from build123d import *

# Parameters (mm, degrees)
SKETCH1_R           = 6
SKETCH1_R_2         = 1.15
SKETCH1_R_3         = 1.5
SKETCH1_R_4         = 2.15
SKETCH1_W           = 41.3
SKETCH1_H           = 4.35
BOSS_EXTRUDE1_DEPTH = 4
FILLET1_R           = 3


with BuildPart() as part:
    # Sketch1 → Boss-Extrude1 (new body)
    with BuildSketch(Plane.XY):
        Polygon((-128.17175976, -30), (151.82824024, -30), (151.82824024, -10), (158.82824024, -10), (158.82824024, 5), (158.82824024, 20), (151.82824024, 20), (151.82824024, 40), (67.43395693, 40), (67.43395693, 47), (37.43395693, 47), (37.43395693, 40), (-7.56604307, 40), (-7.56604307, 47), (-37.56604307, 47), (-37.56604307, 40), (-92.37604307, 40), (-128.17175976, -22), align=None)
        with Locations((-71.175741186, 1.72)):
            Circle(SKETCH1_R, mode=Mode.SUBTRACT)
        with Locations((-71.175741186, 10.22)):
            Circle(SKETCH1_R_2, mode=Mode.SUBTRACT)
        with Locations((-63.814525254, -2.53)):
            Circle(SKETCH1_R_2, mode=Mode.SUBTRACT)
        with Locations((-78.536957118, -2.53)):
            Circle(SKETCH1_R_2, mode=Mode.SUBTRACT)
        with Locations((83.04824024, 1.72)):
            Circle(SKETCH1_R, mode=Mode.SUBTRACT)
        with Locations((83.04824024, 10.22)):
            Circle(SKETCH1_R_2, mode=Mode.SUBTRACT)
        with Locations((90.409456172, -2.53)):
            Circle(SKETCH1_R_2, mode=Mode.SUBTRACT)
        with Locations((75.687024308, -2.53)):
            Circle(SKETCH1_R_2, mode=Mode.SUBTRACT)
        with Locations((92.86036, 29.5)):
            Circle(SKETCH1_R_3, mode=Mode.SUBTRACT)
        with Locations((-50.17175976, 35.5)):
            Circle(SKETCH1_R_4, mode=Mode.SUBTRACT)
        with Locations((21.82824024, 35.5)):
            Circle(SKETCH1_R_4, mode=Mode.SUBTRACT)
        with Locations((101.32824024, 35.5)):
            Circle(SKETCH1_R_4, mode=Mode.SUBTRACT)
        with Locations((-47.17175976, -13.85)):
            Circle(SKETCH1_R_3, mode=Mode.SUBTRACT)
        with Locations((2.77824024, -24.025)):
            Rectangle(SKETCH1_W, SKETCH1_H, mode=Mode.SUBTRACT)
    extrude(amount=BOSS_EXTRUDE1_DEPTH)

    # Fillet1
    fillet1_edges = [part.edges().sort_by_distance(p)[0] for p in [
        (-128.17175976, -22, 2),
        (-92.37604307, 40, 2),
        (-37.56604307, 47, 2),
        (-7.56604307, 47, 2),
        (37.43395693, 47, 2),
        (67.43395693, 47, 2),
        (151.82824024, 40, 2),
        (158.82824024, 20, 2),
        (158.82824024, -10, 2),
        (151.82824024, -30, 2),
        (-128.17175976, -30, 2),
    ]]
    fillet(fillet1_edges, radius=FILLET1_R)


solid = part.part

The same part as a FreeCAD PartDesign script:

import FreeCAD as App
import Part
import Sketcher
Q = App.Units.Quantity


def edges_at(feature, points):
    """Names of the edges that pass closest to the given points."""
    edges = feature.Shape.Edges
    near = lambda p: min(range(len(edges)), key=lambda i: edges[i].distToShape(Part.Vertex(*p))[0])
    return sorted({f"Edge{near(p) + 1}" for p in points})


def add_polygon(sketch, points):
    """Adds a closed chain of lines whose ends are joined by coincident constraints."""
    first, n = sketch.GeometryCount, len(points)
    for a, b in zip(points, points[1:] + points[:1]):
        sketch.addGeometry(Part.LineSegment(App.Vector(*a, 0), App.Vector(*b, 0)), False)
    for i in range(n):
        sketch.addConstraint(Sketcher.Constraint("Coincident", first + i, 2, first + (i + 1) % n, 1))

doc = App.newDocument("Part")
body = doc.addObject("PartDesign::Body", "Body")

# Sketch on XY plane
sketch1 = body.newObject("Sketcher::SketchObject", "Sketch")
sketch1.AttachmentSupport = (doc.getObject("XY_Plane"), [""])
sketch1.MapMode = "FlatFace"
add_polygon(sketch1, [(-128.2, -30), (151.8, -30), (151.8, -10), (158.8, -10), (158.8, 20), (151.8, 20), (151.8, 40), (67.4, 40), (67.4, 47), (37.4, 47), (37.4, 40), (-7.6, 40), (-7.6, 47), (-37.6, 47), (-37.6, 40), (-92.4, 40), (-128.2, -22)])  # lines 0-16
sketch1.addGeometry(Part.Circle(App.Vector(-47.2, -13.8, 0), App.Vector(0, 0, 1), 1.5), False)  # 17
add_polygon(sketch1, [(23.4, -26.2), (-17.9, -26.2), (-17.9, -21.9), (23.4, -21.9)])  # lines 18-21
sketch1.addGeometry(Part.Circle(App.Vector(-78.5, -2.5, 0), App.Vector(0, 0, 1), 1.1), False)  # 22
sketch1.addGeometry(Part.Circle(App.Vector(-63.8, -2.5, 0), App.Vector(0, 0, 1), 1.1), False)  # 23
sketch1.addGeometry(Part.Circle(App.Vector(-71.2, 1.7, 0), App.Vector(0, 0, 1), 6), False)  # 24
sketch1.addGeometry(Part.Circle(App.Vector(75.7, -2.5, 0), App.Vector(0, 0, 1), 1.1), False)  # 25
sketch1.addGeometry(Part.Circle(App.Vector(90.4, -2.5, 0), App.Vector(0, 0, 1), 1.1), False)  # 26
sketch1.addGeometry(Part.Circle(App.Vector(83, 1.7, 0), App.Vector(0, 0, 1), 6), False)  # 27
sketch1.addGeometry(Part.Circle(App.Vector(-71.2, 10.2, 0), App.Vector(0, 0, 1), 1.1), False)  # 28
sketch1.addGeometry(Part.Circle(App.Vector(-50.2, 35.5, 0), App.Vector(0, 0, 1), 2.1), False)  # 29
sketch1.addGeometry(Part.Circle(App.Vector(83, 10.2, 0), App.Vector(0, 0, 1), 1.1), False)  # 30
sketch1.addGeometry(Part.Circle(App.Vector(21.8, 35.5, 0), App.Vector(0, 0, 1), 2.1), False)  # 31
sketch1.addGeometry(Part.Circle(App.Vector(92.9, 29.5, 0), App.Vector(0, 0, 1), 1.5), False)  # 32
sketch1.addGeometry(Part.Circle(App.Vector(101.3, 35.5, 0), App.Vector(0, 0, 1), 2.1), False)  # 33
sketch1.addConstraint(Sketcher.Constraint("Horizontal", 0))
sketch1.addConstraint(Sketcher.Constraint("Vertical", 1))
sketch1.addConstraint(Sketcher.Constraint("Horizontal", 2))
sketch1.addConstraint(Sketcher.Constraint("Vertical", 3))
sketch1.addConstraint(Sketcher.Constraint("Horizontal", 4))
sketch1.addConstraint(Sketcher.Constraint("Vertical", 5))
sketch1.addConstraint(Sketcher.Constraint("Horizontal", 6))
sketch1.addConstraint(Sketcher.Constraint("Vertical", 7))
sketch1.addConstraint(Sketcher.Constraint("Horizontal", 8))
sketch1.addConstraint(Sketcher.Constraint("Vertical", 9))
sketch1.addConstraint(Sketcher.Constraint("Horizontal", 10))
sketch1.addConstraint(Sketcher.Constraint("Vertical", 11))
sketch1.addConstraint(Sketcher.Constraint("Horizontal", 12))
sketch1.addConstraint(Sketcher.Constraint("Vertical", 13))
sketch1.addConstraint(Sketcher.Constraint("Horizontal", 14))
sketch1.addConstraint(Sketcher.Constraint("Vertical", 16))
sketch1.addConstraint(Sketcher.Constraint("Horizontal", 18))
sketch1.addConstraint(Sketcher.Constraint("Vertical", 19))
sketch1.addConstraint(Sketcher.Constraint("Horizontal", 20))
sketch1.addConstraint(Sketcher.Constraint("Vertical", 21))
sketch1.addConstraint(Sketcher.Constraint("Equal", 22, 23))
sketch1.addConstraint(Sketcher.Constraint("Equal", 23, 25))
sketch1.addConstraint(Sketcher.Constraint("Equal", 25, 26))
sketch1.addConstraint(Sketcher.Constraint("Equal", 24, 27))
sketch1.addConstraint(Sketcher.Constraint("Equal", 26, 28))
sketch1.addConstraint(Sketcher.Constraint("Equal", 28, 30))
sketch1.addConstraint(Sketcher.Constraint("Equal", 29, 31))
sketch1.addConstraint(Sketcher.Constraint("Equal", 17, 32))
sketch1.addConstraint(Sketcher.Constraint("Equal", 31, 33))
sketch1.addConstraint(Sketcher.Constraint("Horizontal", 22, 3, 23, 3))
sketch1.addConstraint(Sketcher.Constraint("Horizontal", 23, 3, 25, 3))
sketch1.addConstraint(Sketcher.Constraint("Horizontal", 25, 3, 26, 3))
sketch1.addConstraint(Sketcher.Constraint("Horizontal", 24, 3, 27, 3))
sketch1.addConstraint(Sketcher.Constraint("Horizontal", 28, 3, 30, 3))
sketch1.addConstraint(Sketcher.Constraint("Horizontal", 29, 3, 31, 3))
sketch1.addConstraint(Sketcher.Constraint("Horizontal", 31, 3, 33, 3))
sketch1.addConstraint(Sketcher.Constraint("Horizontal", 6, 2, 9, 2))
sketch1.addConstraint(Sketcher.Constraint("Horizontal", 8, 2, 11, 2))
sketch1.addConstraint(Sketcher.Constraint("Horizontal", 10, 2, 13, 2))
sketch1.addConstraint(Sketcher.Constraint("Vertical", 24, 3, 28, 3))
sketch1.addConstraint(Sketcher.Constraint("Vertical", 27, 3, 30, 3))
sketch1.addConstraint(Sketcher.Constraint("Vertical", 1, 2, 4, 2))
sketch1.addConstraint(Sketcher.Constraint("Equal", 8, 12))
sketch1.addConstraint(Sketcher.Constraint("Equal", 12, 3))
sketch1.addConstraint(Sketcher.Constraint("Equal", 1, 5))
sketch1.addConstraint(Sketcher.Constraint("Equal", 4, 7))
sketch1.addConstraint(Sketcher.Constraint("Diameter", 17, Q("3 mm")))
sketch1.addConstraint(Sketcher.Constraint("Diameter", 24, Q("12 mm")))
sketch1.addConstraint(Sketcher.Constraint("Diameter", 22, Q("2.3 mm")))
sketch1.addConstraint(Sketcher.Constraint("Diameter", 29, Q("4.3 mm")))
sketch1.addConstraint(Sketcher.Constraint("DistanceX", 0, 1, 0, 2, Q("280 mm")))
sketch1.addConstraint(Sketcher.Constraint("DistanceX", 2, 1, 2, 2, Q("7 mm")))
sketch1.addConstraint(Sketcher.Constraint("DistanceX", 8, 2, 8, 1, Q("30 mm")))
sketch1.addConstraint(Sketcher.Constraint("DistanceX", 10, 2, 10, 1, Q("45 mm")))
sketch1.addConstraint(Sketcher.Constraint("DistanceY", 1, 1, 1, 2, Q("20 mm")))
sketch1.addConstraint(Sketcher.Constraint("DistanceY", 16, 2, 16, 1, Q("8 mm")))
sketch1.addConstraint(Sketcher.Constraint("Angle", 15, Q("-120 deg")))
sketch1.addConstraint(Sketcher.Constraint("DistanceX", 18, 2, 18, 1, Q("41.3 mm")))
sketch1.addConstraint(Sketcher.Constraint("DistanceY", 0, 2, -1, 1, Q("30 mm")))
sketch1.addConstraint(Sketcher.Constraint("DistanceX", 29, 3, 17, 3, Q("3 mm")))
sketch1.addConstraint(Sketcher.Constraint("DistanceX", 29, 3, 31, 3, Q("72 mm")))
sketch1.addConstraint(Sketcher.Constraint("DistanceY", 32, 3, 31, 3, Q("6 mm")))
sketch1.addConstraint(Sketcher.Constraint("DistanceY", 19, 2, 17, 3, Q("8 mm")))
sketch1.addConstraint(Sketcher.Constraint("DistanceX", 14, 2, 14, 1, Q("54.81 mm")))
sketch1.addConstraint(Sketcher.Constraint("DistanceY", 19, 1, 19, 2, Q("4.35 mm")))
sketch1.addConstraint(Sketcher.Constraint("DistanceY", -1, 1, 29, 3, Q("35.5 mm")))
sketch1.addConstraint(Sketcher.Constraint("DistanceY", 18, 2, -1, 1, Q("26.2 mm")))
sketch1.addConstraint(Sketcher.Constraint("DistanceY", 24, 3, 28, 3, Q("8.5 mm")))
sketch1.addConstraint(Sketcher.Constraint("DistanceX", 33, 3, 0, 2, Q("50.5 mm")))
sketch1.addConstraint(Sketcher.Constraint("DistanceX", 17, 3, 18, 2, Q("29.3 mm")))
sketch1.addConstraint(Sketcher.Constraint("DistanceY", 22, 3, -1, 1, Q("2.53 mm")))
sketch1.addConstraint(Sketcher.Constraint("DistanceY", -1, 1, 24, 3, Q("1.72 mm")))
sketch1.addConstraint(Sketcher.Constraint("DistanceX", 17, 3, 27, 3, Q("130.22 mm")))
sketch1.addConstraint(Sketcher.Constraint("DistanceX", 30, 3, 33, 3, Q("18.28 mm")))
sketch1.addConstraint(Sketcher.Constraint("DistanceX", 28, 3, 12, 2, Q("33.609698 mm")))
sketch1.addConstraint(Sketcher.Constraint("DistanceX", 17, 3, -1, 1, Q("47.17176 mm")))
sketch1.addConstraint(Sketcher.Constraint("DistanceX", -1, 1, 32, 3, Q("92.86036 mm")))
sketch1.addConstraint(Sketcher.Constraint("DistanceX", 22, 3, 23, 3, Q("14.722432 mm")))
sketch1.addConstraint(Sketcher.Constraint("DistanceX", 23, 3, 25, 3, Q("139.50155 mm")))
sketch1.addConstraint(Sketcher.Constraint("DistanceX", 25, 3, 26, 3, Q("14.722432 mm")))
sketch1.addConstraint(Sketcher.Constraint("DistanceX", 22, 3, -1, 1, Q("78.536957 mm")))
pad1 = body.newObject("PartDesign::Pad", "Pad")
pad1.Profile = sketch1
pad1.Length = 4
doc.recompute()

fillet = body.newObject("PartDesign::Fillet", "Fillet")
fillet.Base = (pad1, edges_at(pad1, [
    (-128.172, -22, 2),
    (-92.376, 40, 2),
    (-37.566, 47, 2),
    (-7.566, 47, 2),
    (37.434, 47, 2),
    (67.434, 47, 2),
    (151.828, 40, 2),
    (158.828, 20, 2),
    (158.828, -10, 2),
    (151.828, -30, 2),
    (-128.172, -30, 2),
]))
fillet.Radius = 3

doc.recompute()
